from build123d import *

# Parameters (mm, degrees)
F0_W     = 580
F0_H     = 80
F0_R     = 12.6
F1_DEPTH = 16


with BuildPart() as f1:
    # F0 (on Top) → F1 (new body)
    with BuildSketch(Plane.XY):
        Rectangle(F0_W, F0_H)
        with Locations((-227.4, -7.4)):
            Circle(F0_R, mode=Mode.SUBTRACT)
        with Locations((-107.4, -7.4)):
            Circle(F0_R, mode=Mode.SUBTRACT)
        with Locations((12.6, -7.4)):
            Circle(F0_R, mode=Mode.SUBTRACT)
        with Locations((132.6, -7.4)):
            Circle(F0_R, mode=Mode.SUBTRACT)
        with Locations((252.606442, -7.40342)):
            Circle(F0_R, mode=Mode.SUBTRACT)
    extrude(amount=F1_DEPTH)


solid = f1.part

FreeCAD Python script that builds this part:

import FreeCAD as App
import Part
import Sketcher
from FreeCAD import Vector


def add_polygon(sketch, points):
    """Adds a closed chain of lines whose ends are joined by coincident constraints."""
    first, n = sketch.GeometryCount, len(points)
    for a, b in zip(points, points[1:] + points[:1]):
        sketch.addGeometry(Part.LineSegment(App.Vector(*a, 0), App.Vector(*b, 0)), False)
    for i in range(n):
        sketch.addConstraint(Sketcher.Constraint("Coincident", first + i, 2, first + (i + 1) % n, 1))

doc = App.newDocument("Part")
body = doc.addObject("PartDesign::Body", "Body")

sketch1 = body.newObject("Sketcher::SketchObject", "Sketch")
sketch1.AttachmentSupport = (doc.getObject("XY_Plane"), [""])
sketch1.MapMode = "FlatFace"
add_polygon(sketch1, [(-290, 40), (-290, -40), (290, -40), (290, 40)])
sketch1.addGeometry(Part.Circle(Vector(252.606442, -7.40342, 0), Vector(0, 0, 1), 12.6), False)
sketch1.addGeometry(Part.Circle(Vector(-227.4, -7.4, 0), Vector(0, 0, 1), 12.6), False)
sketch1.addGeometry(Part.Circle(Vector(-107.4, -7.4, 0), Vector(0, 0, 1), 12.6), False)
sketch1.addGeometry(Part.Circle(Vector(12.6, -7.4, 0), Vector(0, 0, 1), 12.6), False)
sketch1.addGeometry(Part.Circle(Vector(132.6, -7.4, 0), Vector(0, 0, 1), 12.6), False)
sketch1.addConstraint(Sketcher.Constraint("Vertical", 0))
sketch1.addConstraint(Sketcher.Constraint("Horizontal", 1))
sketch1.addConstraint(Sketcher.Constraint("Vertical", 2))
sketch1.addConstraint(Sketcher.Constraint("Horizontal", 3))
sketch1.addConstraint(Sketcher.Constraint("Equal", 4, 5))
sketch1.addConstraint(Sketcher.Constraint("Equal", 5, 6))
sketch1.addConstraint(Sketcher.Constraint("Equal", 6, 7))
sketch1.addConstraint(Sketcher.Constraint("Equal", 7, 8))
sketch1.addConstraint(Sketcher.Constraint("Symmetric", 0, 2, 2, 2, -1, 1))
sketch1.addConstraint(Sketcher.Constraint("Horizontal", 5, 3, 6, 3))
sketch1.addConstraint(Sketcher.Constraint("Horizontal", 6, 3, 7, 3))
sketch1.addConstraint(Sketcher.Constraint("Horizontal", 7, 3, 8, 3))
sketch1.addConstraint(Sketcher.Constraint("Diameter", 4, 25.2))
sketch1.addConstraint(Sketcher.Constraint("DistanceX", 1, 1, 1, 2, 580.0))
sketch1.addConstraint(Sketcher.Constraint("DistanceY", 0, 2, 0, 1, 80.0))
sketch1.addConstraint(Sketcher.Constraint("DistanceX", 5, 3, 6, 3, 120.0))
sketch1.addConstraint(Sketcher.Constraint("DistanceX", 6, 3, 7, 3, 120.0))
sketch1.addConstraint(Sketcher.Constraint("DistanceX", 7, 3, 8, 3, 120.0))
sketch1.addConstraint(Sketcher.Constraint("DistanceX", 5, 3, -1, 1, 227.4))
sketch1.addConstraint(Sketcher.Constraint("DistanceY", 5, 3, -1, 1, 7.4))
sketch1.addConstraint(Sketcher.Constraint("DistanceX", -1, 1, 4, 3, 252.606442))
sketch1.addConstraint(Sketcher.Constraint("DistanceY", 4, 3, -1, 1, 7.40342))
pad1 = body.newObject("PartDesign::Pad", "Pad")
pad1.Profile = sketch1
pad1.Length = 16

doc.recompute()
